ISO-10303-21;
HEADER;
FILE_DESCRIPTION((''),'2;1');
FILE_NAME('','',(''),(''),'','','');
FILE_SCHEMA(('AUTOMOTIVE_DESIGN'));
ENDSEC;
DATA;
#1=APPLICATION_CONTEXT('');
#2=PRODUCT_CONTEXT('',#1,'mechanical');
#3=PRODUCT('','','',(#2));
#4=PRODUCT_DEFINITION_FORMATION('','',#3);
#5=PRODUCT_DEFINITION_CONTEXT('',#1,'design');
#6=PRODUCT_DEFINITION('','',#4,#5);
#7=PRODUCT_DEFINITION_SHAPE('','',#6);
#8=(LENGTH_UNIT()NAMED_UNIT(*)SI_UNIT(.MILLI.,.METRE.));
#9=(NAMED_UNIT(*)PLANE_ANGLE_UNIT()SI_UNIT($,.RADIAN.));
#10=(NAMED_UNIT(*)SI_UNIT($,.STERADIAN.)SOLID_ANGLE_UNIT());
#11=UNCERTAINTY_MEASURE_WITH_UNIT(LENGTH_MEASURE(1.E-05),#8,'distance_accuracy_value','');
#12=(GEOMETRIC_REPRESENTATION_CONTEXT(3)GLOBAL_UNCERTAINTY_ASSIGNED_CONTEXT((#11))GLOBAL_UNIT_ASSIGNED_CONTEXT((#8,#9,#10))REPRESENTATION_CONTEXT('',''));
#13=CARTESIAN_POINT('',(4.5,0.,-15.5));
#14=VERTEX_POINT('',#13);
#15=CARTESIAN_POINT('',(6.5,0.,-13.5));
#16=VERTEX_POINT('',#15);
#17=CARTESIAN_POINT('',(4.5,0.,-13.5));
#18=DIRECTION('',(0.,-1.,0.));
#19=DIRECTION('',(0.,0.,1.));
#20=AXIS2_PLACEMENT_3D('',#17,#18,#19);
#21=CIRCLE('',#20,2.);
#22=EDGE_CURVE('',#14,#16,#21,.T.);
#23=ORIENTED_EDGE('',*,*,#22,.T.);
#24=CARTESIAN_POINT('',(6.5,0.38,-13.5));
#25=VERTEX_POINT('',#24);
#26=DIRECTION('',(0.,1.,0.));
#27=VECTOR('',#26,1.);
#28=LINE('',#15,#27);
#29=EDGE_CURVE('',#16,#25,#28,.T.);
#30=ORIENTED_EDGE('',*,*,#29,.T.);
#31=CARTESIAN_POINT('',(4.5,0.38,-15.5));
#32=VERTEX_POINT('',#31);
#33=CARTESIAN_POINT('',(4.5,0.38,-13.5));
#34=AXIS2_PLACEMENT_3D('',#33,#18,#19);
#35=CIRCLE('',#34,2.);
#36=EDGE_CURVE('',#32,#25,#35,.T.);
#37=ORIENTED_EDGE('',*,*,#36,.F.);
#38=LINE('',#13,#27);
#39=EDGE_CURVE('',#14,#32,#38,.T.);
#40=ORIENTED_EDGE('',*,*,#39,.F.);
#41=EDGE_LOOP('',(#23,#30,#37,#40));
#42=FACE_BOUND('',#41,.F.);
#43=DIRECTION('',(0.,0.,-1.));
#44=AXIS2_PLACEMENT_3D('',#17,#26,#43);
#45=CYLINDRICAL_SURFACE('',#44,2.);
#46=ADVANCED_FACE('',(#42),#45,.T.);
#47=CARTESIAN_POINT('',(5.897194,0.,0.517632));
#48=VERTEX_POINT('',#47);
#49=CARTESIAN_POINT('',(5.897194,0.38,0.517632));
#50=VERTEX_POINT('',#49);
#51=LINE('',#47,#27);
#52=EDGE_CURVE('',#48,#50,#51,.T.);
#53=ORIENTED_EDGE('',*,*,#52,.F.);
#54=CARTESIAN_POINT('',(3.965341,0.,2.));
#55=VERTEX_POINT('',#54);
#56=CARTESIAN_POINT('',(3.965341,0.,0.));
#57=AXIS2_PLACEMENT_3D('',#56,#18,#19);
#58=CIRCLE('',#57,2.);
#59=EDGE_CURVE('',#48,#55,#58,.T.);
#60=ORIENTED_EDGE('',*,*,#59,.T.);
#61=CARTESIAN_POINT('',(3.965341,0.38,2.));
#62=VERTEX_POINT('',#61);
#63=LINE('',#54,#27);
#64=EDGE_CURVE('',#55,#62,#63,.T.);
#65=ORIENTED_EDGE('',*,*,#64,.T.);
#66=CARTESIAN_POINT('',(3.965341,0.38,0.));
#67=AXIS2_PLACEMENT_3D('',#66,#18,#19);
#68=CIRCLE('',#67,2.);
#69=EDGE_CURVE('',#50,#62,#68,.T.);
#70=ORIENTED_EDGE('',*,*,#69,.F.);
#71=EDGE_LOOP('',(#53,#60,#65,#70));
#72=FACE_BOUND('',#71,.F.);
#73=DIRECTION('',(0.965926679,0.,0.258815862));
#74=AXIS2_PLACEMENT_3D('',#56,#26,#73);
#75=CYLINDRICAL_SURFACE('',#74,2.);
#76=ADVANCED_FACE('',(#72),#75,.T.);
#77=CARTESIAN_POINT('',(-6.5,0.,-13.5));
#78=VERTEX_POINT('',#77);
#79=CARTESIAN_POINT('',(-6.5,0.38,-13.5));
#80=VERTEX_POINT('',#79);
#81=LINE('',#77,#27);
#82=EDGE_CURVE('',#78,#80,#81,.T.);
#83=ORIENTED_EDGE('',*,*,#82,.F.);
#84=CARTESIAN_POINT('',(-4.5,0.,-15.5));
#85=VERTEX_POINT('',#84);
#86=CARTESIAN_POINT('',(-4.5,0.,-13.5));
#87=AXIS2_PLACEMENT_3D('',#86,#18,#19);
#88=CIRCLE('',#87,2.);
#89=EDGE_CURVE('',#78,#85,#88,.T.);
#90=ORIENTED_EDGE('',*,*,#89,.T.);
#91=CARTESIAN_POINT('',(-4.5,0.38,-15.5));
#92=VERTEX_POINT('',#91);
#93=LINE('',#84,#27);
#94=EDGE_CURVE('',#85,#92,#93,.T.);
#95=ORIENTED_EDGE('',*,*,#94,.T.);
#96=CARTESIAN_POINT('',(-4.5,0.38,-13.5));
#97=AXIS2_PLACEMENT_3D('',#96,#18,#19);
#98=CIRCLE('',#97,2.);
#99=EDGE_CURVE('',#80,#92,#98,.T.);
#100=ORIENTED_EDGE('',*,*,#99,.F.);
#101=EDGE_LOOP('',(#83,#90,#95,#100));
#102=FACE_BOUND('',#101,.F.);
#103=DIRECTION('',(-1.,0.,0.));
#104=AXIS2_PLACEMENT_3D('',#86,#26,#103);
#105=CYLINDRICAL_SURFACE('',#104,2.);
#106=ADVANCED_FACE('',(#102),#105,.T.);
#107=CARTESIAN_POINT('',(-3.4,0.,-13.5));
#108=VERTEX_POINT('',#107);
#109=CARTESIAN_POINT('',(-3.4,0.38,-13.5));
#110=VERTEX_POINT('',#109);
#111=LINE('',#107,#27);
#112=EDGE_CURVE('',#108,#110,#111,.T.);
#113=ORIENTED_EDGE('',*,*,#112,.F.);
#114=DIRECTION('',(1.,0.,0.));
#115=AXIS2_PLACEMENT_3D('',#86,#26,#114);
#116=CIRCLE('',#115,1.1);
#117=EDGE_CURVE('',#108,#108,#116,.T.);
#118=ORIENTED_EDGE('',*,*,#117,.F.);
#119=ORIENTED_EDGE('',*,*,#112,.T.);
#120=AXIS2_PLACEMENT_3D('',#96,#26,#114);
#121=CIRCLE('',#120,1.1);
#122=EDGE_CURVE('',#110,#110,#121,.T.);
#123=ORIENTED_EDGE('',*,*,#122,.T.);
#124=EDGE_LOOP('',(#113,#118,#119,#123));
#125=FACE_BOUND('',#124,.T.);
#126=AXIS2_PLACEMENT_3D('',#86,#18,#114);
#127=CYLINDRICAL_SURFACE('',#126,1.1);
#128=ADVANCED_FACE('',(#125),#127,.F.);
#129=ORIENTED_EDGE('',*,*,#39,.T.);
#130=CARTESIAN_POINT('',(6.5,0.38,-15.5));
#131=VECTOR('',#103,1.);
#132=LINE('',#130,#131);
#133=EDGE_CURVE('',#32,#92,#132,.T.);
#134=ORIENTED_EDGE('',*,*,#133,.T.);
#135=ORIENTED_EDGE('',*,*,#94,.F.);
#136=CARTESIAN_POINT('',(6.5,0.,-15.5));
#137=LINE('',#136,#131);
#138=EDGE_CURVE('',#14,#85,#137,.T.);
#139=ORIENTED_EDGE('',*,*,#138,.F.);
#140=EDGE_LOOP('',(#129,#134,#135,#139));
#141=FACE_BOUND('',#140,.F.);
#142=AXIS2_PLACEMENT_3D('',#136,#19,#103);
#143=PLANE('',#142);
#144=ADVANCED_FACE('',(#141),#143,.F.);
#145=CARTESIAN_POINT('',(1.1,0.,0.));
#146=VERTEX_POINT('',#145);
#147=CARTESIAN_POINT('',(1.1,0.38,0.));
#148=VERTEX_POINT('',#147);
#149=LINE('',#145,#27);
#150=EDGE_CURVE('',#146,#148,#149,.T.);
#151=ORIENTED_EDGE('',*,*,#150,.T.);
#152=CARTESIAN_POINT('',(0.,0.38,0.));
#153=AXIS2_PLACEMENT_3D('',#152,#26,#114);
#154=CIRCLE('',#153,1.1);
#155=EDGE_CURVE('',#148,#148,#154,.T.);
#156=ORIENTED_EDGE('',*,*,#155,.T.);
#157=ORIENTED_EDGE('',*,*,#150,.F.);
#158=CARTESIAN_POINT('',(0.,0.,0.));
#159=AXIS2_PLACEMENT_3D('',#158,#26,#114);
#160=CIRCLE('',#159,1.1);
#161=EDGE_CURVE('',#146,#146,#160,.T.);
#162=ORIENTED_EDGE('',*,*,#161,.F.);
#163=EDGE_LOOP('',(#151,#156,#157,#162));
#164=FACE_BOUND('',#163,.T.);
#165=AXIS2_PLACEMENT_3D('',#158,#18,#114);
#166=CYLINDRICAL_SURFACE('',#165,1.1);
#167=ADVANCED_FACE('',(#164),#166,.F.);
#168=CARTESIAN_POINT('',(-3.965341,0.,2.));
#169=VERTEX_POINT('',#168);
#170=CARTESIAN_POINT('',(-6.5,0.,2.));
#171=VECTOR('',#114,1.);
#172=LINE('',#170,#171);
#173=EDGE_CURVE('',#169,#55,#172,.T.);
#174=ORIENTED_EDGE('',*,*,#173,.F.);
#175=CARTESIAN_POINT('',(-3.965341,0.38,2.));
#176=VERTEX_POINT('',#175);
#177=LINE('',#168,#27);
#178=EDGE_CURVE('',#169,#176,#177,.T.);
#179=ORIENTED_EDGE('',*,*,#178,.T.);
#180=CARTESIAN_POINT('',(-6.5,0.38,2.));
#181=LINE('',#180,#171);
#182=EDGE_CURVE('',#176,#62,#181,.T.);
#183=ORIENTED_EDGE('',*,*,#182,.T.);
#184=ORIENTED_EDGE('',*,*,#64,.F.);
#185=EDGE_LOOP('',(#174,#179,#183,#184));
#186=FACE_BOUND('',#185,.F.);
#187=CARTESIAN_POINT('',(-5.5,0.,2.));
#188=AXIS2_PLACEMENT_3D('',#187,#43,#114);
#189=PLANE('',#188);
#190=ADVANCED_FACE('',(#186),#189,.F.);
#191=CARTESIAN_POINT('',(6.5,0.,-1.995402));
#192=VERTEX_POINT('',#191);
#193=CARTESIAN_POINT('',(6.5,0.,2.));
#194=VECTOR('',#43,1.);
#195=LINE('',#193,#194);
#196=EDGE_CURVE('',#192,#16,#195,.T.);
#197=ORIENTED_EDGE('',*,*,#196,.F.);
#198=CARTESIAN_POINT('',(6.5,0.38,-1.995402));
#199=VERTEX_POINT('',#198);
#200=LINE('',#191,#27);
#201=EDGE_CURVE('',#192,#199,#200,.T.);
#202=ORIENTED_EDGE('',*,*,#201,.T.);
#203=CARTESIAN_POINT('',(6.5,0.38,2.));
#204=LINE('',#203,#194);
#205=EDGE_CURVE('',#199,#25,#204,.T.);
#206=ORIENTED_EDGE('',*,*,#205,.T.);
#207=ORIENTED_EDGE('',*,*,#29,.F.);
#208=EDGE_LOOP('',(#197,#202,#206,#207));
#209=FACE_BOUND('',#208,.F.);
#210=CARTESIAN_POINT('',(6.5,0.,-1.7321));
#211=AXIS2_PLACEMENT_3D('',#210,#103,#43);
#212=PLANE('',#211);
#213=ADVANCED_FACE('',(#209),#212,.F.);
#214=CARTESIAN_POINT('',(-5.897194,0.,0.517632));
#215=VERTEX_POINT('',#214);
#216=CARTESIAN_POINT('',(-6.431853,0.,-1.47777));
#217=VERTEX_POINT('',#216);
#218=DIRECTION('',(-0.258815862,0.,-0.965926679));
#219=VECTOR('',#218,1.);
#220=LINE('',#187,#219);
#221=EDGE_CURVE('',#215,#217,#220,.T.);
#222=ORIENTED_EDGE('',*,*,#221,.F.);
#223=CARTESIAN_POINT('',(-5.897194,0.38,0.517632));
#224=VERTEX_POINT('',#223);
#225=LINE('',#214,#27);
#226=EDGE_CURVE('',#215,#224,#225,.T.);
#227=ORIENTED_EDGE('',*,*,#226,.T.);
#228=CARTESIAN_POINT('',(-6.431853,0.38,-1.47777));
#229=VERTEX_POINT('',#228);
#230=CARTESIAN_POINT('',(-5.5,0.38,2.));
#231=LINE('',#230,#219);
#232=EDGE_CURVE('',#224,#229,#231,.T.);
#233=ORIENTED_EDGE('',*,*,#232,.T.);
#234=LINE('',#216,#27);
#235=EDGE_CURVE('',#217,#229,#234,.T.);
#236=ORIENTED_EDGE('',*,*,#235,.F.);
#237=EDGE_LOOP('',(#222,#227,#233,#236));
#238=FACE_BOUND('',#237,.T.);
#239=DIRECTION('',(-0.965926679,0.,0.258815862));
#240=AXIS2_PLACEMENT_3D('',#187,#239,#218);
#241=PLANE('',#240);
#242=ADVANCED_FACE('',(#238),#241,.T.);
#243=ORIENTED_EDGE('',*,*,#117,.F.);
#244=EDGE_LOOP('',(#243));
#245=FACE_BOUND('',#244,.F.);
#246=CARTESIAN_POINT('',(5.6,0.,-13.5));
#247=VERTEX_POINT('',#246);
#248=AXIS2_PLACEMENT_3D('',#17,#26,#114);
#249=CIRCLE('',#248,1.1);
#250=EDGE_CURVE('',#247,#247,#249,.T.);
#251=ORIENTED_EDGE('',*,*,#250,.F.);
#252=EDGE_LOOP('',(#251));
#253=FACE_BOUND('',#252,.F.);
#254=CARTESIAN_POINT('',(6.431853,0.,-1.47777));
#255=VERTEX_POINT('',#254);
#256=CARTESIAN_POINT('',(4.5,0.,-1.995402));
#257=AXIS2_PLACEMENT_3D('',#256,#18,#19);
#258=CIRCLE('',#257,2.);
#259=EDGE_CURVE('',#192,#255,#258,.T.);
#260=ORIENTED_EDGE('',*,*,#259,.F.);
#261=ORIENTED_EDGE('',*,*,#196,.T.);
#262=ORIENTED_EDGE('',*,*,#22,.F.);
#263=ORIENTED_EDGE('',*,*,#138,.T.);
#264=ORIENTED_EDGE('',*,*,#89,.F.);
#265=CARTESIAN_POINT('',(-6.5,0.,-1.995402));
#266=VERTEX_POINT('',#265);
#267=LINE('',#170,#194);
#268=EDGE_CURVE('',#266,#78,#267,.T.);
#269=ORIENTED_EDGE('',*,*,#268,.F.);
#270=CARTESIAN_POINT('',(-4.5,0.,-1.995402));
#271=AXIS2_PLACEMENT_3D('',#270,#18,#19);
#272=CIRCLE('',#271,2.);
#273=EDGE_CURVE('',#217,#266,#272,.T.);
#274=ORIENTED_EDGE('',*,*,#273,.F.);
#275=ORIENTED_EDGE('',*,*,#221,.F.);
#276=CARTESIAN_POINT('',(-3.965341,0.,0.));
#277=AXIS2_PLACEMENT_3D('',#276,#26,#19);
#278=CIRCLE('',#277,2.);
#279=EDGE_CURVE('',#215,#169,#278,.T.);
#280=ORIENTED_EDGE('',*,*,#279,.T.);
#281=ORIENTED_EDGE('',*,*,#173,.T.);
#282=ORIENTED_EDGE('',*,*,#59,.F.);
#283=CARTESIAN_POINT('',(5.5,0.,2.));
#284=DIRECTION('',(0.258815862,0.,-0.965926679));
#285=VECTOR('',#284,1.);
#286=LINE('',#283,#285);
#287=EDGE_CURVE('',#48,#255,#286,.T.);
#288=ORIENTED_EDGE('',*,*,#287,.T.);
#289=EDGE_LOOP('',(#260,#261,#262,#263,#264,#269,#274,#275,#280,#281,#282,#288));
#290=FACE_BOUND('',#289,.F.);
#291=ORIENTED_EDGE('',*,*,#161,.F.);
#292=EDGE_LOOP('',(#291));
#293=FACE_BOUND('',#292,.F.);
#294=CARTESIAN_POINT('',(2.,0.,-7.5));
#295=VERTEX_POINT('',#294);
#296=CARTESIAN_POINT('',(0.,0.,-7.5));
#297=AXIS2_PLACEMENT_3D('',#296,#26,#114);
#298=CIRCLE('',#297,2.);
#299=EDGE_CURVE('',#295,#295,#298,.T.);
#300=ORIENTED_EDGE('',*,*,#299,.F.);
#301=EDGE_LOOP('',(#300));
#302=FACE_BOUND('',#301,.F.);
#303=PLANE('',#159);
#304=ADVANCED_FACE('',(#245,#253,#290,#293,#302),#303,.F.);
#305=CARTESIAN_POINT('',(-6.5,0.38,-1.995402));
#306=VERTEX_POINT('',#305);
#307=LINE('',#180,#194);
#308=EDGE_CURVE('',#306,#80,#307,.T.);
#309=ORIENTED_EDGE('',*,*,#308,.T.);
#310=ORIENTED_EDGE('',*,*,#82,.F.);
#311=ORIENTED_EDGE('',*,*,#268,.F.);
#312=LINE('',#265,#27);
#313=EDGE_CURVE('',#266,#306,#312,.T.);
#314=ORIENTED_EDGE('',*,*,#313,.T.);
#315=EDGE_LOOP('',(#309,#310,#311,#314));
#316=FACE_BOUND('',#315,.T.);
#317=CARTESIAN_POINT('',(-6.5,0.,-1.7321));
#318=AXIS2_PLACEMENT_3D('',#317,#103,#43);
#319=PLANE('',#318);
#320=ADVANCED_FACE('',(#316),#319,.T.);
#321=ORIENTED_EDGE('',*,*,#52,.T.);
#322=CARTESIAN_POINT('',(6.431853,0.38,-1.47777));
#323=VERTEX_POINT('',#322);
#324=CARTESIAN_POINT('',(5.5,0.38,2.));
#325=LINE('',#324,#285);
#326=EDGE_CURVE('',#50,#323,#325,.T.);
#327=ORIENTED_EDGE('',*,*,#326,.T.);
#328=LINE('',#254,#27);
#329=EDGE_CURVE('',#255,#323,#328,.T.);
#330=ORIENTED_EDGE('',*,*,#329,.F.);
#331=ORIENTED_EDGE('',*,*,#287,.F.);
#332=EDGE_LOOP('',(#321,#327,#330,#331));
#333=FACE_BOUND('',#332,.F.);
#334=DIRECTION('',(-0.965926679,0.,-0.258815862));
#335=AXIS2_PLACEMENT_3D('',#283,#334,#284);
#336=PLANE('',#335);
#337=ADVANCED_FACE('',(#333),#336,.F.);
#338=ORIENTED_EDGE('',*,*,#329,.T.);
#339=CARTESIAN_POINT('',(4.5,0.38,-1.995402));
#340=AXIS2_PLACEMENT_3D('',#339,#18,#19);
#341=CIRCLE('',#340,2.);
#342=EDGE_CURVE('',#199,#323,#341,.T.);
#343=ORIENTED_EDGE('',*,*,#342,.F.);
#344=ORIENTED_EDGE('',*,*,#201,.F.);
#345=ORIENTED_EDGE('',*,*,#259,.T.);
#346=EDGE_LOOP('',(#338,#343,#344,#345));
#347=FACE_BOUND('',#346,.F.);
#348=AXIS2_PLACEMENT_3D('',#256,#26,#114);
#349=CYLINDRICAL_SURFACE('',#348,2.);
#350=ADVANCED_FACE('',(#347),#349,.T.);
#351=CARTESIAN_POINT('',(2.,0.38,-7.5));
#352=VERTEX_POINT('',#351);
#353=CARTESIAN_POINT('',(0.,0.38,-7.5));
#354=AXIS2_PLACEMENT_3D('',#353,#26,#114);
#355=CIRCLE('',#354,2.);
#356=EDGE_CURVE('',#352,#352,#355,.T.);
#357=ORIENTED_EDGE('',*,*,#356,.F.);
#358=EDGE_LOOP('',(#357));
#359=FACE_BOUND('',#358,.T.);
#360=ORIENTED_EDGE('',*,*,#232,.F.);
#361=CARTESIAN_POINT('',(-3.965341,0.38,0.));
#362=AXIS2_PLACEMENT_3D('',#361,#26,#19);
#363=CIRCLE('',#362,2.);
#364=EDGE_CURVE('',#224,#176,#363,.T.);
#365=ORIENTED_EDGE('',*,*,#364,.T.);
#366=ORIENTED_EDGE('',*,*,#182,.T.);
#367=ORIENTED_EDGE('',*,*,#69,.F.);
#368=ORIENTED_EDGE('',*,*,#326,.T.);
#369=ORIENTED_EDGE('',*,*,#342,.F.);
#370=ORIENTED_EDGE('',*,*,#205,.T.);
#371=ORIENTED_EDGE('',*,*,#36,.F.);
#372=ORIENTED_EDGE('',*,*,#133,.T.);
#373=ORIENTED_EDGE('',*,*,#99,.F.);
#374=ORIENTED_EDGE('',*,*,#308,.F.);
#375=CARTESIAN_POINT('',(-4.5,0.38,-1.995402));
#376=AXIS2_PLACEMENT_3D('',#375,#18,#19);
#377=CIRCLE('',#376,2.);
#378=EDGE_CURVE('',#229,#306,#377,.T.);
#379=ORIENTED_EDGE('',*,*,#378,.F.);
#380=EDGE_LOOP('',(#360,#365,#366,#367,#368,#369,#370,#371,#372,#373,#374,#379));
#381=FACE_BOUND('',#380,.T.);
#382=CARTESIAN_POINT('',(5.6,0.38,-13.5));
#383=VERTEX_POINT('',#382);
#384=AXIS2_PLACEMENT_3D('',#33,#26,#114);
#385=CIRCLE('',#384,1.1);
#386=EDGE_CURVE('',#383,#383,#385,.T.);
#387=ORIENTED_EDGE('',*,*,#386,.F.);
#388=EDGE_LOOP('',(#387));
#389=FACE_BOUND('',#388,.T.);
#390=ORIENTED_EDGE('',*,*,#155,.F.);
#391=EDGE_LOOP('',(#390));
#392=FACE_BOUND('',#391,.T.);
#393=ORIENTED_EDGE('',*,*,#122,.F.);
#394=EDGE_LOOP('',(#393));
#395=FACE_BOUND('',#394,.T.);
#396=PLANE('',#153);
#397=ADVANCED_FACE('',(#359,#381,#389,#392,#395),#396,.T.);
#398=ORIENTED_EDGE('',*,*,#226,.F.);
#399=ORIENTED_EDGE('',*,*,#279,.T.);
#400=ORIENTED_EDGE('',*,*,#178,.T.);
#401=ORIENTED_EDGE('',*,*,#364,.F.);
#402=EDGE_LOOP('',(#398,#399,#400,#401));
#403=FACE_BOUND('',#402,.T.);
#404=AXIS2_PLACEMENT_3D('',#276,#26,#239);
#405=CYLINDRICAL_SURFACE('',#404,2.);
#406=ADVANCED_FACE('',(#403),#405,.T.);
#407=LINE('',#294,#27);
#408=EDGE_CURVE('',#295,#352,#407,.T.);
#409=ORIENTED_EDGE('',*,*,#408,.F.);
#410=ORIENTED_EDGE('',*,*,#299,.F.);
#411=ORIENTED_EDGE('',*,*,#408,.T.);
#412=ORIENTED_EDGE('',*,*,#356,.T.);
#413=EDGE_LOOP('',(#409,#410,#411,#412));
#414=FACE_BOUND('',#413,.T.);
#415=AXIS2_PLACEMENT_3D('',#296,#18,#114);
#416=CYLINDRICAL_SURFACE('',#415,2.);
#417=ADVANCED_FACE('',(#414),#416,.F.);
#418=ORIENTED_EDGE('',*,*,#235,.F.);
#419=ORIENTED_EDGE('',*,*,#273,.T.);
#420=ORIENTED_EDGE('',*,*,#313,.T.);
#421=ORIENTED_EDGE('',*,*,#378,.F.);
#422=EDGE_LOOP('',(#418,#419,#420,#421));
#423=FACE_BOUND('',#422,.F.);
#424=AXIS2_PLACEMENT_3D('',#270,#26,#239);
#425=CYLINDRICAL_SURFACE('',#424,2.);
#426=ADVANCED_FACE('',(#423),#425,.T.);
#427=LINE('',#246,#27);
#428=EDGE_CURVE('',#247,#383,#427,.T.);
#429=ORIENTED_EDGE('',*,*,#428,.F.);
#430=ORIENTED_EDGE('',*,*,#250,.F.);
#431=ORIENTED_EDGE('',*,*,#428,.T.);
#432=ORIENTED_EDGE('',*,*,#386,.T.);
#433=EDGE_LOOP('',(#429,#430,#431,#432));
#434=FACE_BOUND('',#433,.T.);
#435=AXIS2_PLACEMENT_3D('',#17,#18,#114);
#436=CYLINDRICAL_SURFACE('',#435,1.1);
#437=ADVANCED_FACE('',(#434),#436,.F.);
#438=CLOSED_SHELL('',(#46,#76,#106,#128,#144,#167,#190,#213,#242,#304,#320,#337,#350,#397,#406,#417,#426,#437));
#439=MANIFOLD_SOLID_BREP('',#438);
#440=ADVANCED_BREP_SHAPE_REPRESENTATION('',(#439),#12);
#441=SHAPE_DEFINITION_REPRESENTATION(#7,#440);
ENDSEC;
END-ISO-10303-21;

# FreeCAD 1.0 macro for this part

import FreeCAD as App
import Part
import Sketcher

V = App.Vector
Q = App.Units.Quantity


def edges_at(feature, points):
    """Names of the edges that pass closest to the given points."""
    edges = feature.Shape.Edges
    near = lambda p: min(range(len(edges)), key=lambda i: edges[i].distToShape(Part.Vertex(*p))[0])
    return sorted({f"Edge{near(p) + 1}" for p in points})


def add_polygon(sketch, points):
    """Adds a closed chain of lines whose ends are joined by coincident constraints."""
    first, n = sketch.GeometryCount, len(points)
    for a, b in zip(points, points[1:] + points[:1]):
        sketch.addGeometry(Part.LineSegment(App.Vector(*a, 0), App.Vector(*b, 0)), False)
    for i in range(n):
        sketch.addConstraint(Sketcher.Constraint("Coincident", first + i, 2, first + (i + 1) % n, 1))

doc = App.newDocument("Part")
body = doc.addObject("PartDesign::Body", "Body")

# Sketch on XZ plane
sketch1 = doc.addObject("Sketcher::SketchObject", "Sketch")
body.addObject(sketch1)
sketch1.AttachmentSupport = (doc.XZ_Plane, [""])
sketch1.MapMode = "FlatFace"
add_polygon(sketch1, [(-6.5, -1.7), (-5.5, 2), (5.5, 2), (6.5, -1.7), (6.5, -15.5), (-6.5, -15.5)])  # lines 0-5
sketch1.addGeometry(Part.Circle(V(0, 0, 0), V(0, 0, 1), 1.1), False)  # 6
sketch1.addGeometry(Part.Circle(V(-4.5, -13.5, 0), V(0, 0, 1), 1.1), False)  # 7
sketch1.addGeometry(Part.Circle(V(0, -7.5, 0), V(0, 0, 1), 2), False)  # 8
sketch1.addGeometry(Part.Circle(V(4.5, -13.5, 0), V(0, 0, 1), 1.1), False)  # 9
sketch1.addConstraint([
    Sketcher.Constraint("Horizontal", 1),
    Sketcher.Constraint("Vertical", 3),
    Sketcher.Constraint("Horizontal", 4),
    Sketcher.Constraint("Vertical", 5),
    Sketcher.Constraint("Coincident", 6, 3, -1, 1),
    Sketcher.Constraint("Equal", 6, 7),
    Sketcher.Constraint("Equal", 7, 9),
    Sketcher.Constraint("Symmetric", 7, 3, 9, 3, -2),
    Sketcher.Constraint("Symmetric", 2, 2, 5, 2, -2),
    Sketcher.Constraint("PointOnObject", 8, 3, -2),
    Sketcher.Constraint("Equal", 0, 2),
    Sketcher.Constraint("Diameter", 8, 4.0),
    Sketcher.Constraint("Diameter", 6, 2.2),
    Sketcher.Constraint("DistanceX", 1, 1, 1, 2, 11.0),
    Sketcher.Constraint("DistanceX", 4, 2, 4, 1, 13.0),
    Sketcher.Constraint("DistanceY", -1, 1, 0, 2, 2.0),
    Sketcher.Constraint("DistanceX", 7, 3, 9, 3, 9.0),
    Sketcher.Constraint("DistanceY", 3, 2, 9, 3, 2.0),
    Sketcher.Constraint("DistanceY", 7, 3, -1, 1, 13.5),
    Sketcher.Constraint("DistanceY", 8, 3, -1, 1, 7.5),
    Sketcher.Constraint("Angle", 0, Q("75.0002 deg")),
])
pad1 = doc.addObject("PartDesign::Pad", "Pad")
body.addObject(pad1)
pad1.Profile = sketch1
pad1.Length = 0.38
pad1.Reversed = True
doc.recompute()

fillet = doc.addObject("PartDesign::Fillet", "Fillet")
body.addObject(fillet)
fillet.Base = (pad1, edges_at(pad1, [
    (-6.5, 0.19, -15.5),
    (6.5, 0.19, -15.5),
    (-5.5, 0.19, 2),
    (-6.5, 0.19, -1.732),
    (5.5, 0.19, 2),
    (6.5, 0.19, -1.732),
]))
fillet.Radius = 2

doc.recompute()
